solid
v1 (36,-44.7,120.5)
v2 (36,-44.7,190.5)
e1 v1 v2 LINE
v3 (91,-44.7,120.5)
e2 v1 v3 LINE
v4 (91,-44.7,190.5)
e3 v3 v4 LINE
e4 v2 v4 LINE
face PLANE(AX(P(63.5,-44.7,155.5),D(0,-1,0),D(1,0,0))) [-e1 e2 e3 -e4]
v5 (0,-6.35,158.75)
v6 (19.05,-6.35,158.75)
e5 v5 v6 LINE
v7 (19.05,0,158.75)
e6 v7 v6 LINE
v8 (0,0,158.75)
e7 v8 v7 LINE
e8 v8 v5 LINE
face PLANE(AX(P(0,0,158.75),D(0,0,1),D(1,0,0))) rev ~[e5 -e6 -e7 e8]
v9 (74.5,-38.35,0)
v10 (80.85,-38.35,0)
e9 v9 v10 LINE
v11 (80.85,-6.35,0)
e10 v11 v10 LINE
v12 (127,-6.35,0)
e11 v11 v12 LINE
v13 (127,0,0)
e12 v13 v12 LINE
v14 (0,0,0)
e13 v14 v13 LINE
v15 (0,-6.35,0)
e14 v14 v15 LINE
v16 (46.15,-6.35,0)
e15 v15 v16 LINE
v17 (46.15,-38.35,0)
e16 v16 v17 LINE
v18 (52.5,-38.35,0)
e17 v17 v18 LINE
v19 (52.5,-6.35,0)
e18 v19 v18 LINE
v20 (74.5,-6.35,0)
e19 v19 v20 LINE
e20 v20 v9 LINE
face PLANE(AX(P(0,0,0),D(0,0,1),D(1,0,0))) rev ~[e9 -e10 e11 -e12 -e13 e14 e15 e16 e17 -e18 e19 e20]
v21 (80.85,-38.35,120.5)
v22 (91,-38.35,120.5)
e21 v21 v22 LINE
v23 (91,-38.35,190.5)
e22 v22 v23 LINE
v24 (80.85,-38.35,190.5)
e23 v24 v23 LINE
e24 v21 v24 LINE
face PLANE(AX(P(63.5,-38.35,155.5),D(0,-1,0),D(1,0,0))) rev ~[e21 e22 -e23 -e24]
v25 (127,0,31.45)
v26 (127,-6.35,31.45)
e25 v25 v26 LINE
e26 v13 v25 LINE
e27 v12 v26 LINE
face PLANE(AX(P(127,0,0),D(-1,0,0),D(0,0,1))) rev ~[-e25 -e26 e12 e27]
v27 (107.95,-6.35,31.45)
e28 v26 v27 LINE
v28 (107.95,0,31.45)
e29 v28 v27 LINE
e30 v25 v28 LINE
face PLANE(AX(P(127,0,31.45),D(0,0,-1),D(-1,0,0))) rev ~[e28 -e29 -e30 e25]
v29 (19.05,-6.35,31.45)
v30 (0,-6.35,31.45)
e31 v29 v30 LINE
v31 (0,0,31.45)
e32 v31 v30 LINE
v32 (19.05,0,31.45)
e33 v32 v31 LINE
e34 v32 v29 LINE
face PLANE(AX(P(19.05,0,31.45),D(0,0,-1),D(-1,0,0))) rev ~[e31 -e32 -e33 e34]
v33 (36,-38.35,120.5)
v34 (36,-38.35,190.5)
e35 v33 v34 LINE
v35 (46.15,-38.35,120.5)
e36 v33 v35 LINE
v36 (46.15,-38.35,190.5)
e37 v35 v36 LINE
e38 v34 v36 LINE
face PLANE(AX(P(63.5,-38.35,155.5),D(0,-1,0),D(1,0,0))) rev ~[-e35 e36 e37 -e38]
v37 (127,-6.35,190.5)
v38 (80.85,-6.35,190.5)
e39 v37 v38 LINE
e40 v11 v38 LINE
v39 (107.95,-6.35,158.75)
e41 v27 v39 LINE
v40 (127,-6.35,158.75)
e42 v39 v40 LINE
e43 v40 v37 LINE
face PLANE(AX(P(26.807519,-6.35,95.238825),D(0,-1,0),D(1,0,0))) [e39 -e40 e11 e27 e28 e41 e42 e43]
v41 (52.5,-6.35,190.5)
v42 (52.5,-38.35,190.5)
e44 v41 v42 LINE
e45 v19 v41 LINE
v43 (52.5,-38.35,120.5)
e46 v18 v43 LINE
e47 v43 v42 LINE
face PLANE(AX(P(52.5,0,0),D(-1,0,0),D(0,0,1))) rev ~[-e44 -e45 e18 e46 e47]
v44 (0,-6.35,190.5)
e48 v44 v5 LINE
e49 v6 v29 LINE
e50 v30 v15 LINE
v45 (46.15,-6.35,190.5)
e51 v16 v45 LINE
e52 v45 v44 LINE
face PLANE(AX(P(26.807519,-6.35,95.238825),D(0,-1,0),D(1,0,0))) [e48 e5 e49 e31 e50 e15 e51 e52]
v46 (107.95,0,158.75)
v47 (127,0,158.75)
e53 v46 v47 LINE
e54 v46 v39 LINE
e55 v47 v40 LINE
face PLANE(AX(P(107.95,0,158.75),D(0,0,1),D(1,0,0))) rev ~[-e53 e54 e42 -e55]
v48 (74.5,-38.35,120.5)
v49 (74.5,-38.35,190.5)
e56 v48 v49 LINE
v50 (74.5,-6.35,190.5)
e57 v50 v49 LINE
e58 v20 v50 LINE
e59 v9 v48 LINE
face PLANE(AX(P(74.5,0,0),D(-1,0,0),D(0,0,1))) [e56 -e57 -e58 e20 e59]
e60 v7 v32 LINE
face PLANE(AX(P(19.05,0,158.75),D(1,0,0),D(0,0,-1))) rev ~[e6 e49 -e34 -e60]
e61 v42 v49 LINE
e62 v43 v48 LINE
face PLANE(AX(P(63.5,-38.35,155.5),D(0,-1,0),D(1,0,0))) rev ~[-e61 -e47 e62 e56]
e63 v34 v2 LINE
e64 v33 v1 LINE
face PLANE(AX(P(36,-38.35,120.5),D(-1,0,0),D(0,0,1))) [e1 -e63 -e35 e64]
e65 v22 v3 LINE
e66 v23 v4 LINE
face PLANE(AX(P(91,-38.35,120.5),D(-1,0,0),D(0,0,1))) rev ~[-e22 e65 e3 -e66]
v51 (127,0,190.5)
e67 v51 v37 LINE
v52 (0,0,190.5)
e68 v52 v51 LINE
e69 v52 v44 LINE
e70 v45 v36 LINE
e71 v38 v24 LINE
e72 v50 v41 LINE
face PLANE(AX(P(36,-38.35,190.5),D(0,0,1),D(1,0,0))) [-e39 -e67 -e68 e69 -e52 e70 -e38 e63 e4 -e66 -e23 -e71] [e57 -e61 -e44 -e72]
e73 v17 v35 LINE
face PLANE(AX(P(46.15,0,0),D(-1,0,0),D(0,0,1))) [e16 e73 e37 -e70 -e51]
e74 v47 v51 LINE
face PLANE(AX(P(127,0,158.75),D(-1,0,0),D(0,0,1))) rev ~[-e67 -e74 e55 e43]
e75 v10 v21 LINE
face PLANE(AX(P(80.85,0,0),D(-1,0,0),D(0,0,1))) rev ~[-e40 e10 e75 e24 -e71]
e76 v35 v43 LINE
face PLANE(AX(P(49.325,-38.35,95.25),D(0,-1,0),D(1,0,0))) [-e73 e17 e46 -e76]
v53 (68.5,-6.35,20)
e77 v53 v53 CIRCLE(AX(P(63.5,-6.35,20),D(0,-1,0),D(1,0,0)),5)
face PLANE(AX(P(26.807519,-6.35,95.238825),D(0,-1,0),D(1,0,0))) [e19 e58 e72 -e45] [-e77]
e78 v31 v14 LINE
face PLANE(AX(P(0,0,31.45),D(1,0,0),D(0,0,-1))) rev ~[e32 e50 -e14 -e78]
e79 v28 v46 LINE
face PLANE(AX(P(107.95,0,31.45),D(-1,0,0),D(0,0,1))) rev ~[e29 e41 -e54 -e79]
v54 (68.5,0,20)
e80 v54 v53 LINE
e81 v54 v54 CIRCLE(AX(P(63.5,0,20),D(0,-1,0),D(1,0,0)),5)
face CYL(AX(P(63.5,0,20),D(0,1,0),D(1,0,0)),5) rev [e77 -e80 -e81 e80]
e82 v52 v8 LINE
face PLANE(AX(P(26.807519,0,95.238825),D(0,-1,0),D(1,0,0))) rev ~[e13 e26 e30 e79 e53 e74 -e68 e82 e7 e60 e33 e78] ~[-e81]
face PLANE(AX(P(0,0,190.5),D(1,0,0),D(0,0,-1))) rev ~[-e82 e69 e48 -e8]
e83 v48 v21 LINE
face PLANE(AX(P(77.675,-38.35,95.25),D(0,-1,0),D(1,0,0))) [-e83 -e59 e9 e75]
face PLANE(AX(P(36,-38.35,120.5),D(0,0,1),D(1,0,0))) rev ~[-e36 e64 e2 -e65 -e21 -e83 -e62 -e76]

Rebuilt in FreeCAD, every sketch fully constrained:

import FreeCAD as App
import Part
import Sketcher

V = App.Vector
Q = App.Units.Quantity

doc = App.newDocument("Part")
params = doc.addObject("Spreadsheet::Sheet", "Params")
for row, (alias, value) in enumerate([
    ("sketch1_height", "7.5 in"),
    ("sketch1_width", "0.25 in"),
    ("pad1_length", "38.35 mm"),
    ("sketch2_width", "5 in"),
    ("sketch2_width2", "0.75 in"),
    ("sketch2_height", "1.25 in"),
    ("pad2_length", "0.25 in"),
    ("pad3_length", "0.25 in"),
], start=1):
    params.set(f"A{row}", alias)
    params.set(f"B{row}", "=" + value)
    params.setAlias(f"B{row}", alias)

body = doc.addObject("PartDesign::Body", "Body")
body.AllowCompound = True

# Sketch on XZ plane
sketch1 = body.newObject("Sketcher::SketchObject", "Sketch")
sketch1.AttachmentSupport = (doc.getObject("XZ_Plane"), [""])
sketch1.MapMode = "FlatFace"
sketch1.addGeometry(Part.LineSegment(V(46, 190, 0), V(46, 0, 0)), False)
sketch1.addGeometry(Part.LineSegment(V(46, 0, 0), V(52, 0, 0)), False)
sketch1.addGeometry(Part.LineSegment(V(52, 0, 0), V(52, 190, 0)), False)
sketch1.addGeometry(Part.LineSegment(V(52, 190, 0), V(46, 190, 0)), False)
sketch1.addGeometry(Part.LineSegment(V(74, 190, 0), V(74, 0, 0)), False)
sketch1.addGeometry(Part.LineSegment(V(74, 0, 0), V(81, 0, 0)), False)
sketch1.addGeometry(Part.LineSegment(V(81, 0, 0), V(81, 190, 0)), False)
sketch1.addGeometry(Part.LineSegment(V(81, 190, 0), V(74, 190, 0)), False)
sketch1.addConstraint(Sketcher.Constraint("Coincident", 0, 2, 1, 1))
sketch1.addConstraint(Sketcher.Constraint("Coincident", 1, 2, 2, 1))
sketch1.addConstraint(Sketcher.Constraint("Coincident", 2, 2, 3, 1))
sketch1.addConstraint(Sketcher.Constraint("Coincident", 3, 2, 0, 1))
sketch1.addConstraint(Sketcher.Constraint("Coincident", 4, 2, 5, 1))
sketch1.addConstraint(Sketcher.Constraint("Coincident", 5, 2, 6, 1))
sketch1.addConstraint(Sketcher.Constraint("Coincident", 6, 2, 7, 1))
sketch1.addConstraint(Sketcher.Constraint("Coincident", 7, 2, 4, 1))
sketch1.addConstraint(Sketcher.Constraint("Vertical", 0))
sketch1.addConstraint(Sketcher.Constraint("Horizontal", 1))
sketch1.addConstraint(Sketcher.Constraint("Vertical", 2))
sketch1.addConstraint(Sketcher.Constraint("Horizontal", 3))
sketch1.addConstraint(Sketcher.Constraint("Vertical", 4))
sketch1.addConstraint(Sketcher.Constraint("Horizontal", 5))
sketch1.addConstraint(Sketcher.Constraint("Vertical", 6))
sketch1.addConstraint(Sketcher.Constraint("Horizontal", 7))
sketch1.addConstraint(Sketcher.Constraint("PointOnObject", 0, 2, -1))
sketch1.addConstraint(Sketcher.Constraint("PointOnObject", 4, 2, -1))
sketch1.addConstraint(Sketcher.Constraint("Horizontal", 3, 2, 6, 2))
sketch1.addConstraint(Sketcher.Constraint("Equal", 3, 5))
sketch1.addConstraint(Sketcher.Constraint("DistanceY", 0, 2, 0, 1, Q("7.5 in")))
sketch1.addConstraint(Sketcher.Constraint("DistanceX", 1, 1, 1, 2, Q("0.25 in")))
sketch1.addConstraint(Sketcher.Constraint("DistanceX", -1, 1, 0, 2, Q("46.15 mm")))
sketch1.addConstraint(Sketcher.Constraint("DistanceX", -1, 1, 4, 2, Q("74.5 mm")))
sketch1.setExpression("Constraints[20]", "Params.sketch1_height")
sketch1.setExpression("Constraints[21]", "Params.sketch1_width")
pad1 = body.newObject("PartDesign::Pad", "Pad")
pad1.Profile = sketch1
pad1.setExpression("Length", "Params.pad1_length")

# Sketch on XZ plane
sketch2 = body.newObject("Sketcher::SketchObject", "Sketch001")
sketch2.AttachmentSupport = (doc.getObject("XZ_Plane"), [""])
sketch2.MapMode = "FlatFace"
sketch2.addGeometry(Part.LineSegment(V(0, 0, 0), V(127, 0, 0)), False)
sketch2.addGeometry(Part.LineSegment(V(127, 0, 0), V(127, 31, 0)), False)
sketch2.addGeometry(Part.LineSegment(V(127, 31, 0), V(108, 31, 0)), False)
sketch2.addGeometry(Part.LineSegment(V(108, 31, 0), V(108, 159, 0)), False)
sketch2.addGeometry(Part.LineSegment(V(108, 159, 0), V(127, 159, 0)), False)
sketch2.addGeometry(Part.LineSegment(V(127, 159, 0), V(127, 190, 0)), False)
sketch2.addGeometry(Part.LineSegment(V(127, 190, 0), V(0, 190, 0)), False)
sketch2.addGeometry(Part.LineSegment(V(0, 190, 0), V(0, 159, 0)), False)
sketch2.addGeometry(Part.LineSegment(V(0, 159, 0), V(19, 159, 0)), False)
sketch2.addGeometry(Part.LineSegment(V(19, 159, 0), V(19, 31, 0)), False)
sketch2.addGeometry(Part.LineSegment(V(19, 31, 0), V(0, 31, 0)), False)
sketch2.addGeometry(Part.LineSegment(V(0, 31, 0), V(0, 0, 0)), False)
sketch2.addGeometry(Part.Circle(V(64, 20, 0), V(0, 0, 1), 5), False)
sketch2.addConstraint(Sketcher.Constraint("Coincident", 0, 2, 1, 1))
sketch2.addConstraint(Sketcher.Constraint("Coincident", 1, 2, 2, 1))
sketch2.addConstraint(Sketcher.Constraint("Coincident", 2, 2, 3, 1))
sketch2.addConstraint(Sketcher.Constraint("Coincident", 3, 2, 4, 1))
sketch2.addConstraint(Sketcher.Constraint("Coincident", 4, 2, 5, 1))
sketch2.addConstraint(Sketcher.Constraint("Coincident", 5, 2, 6, 1))
sketch2.addConstraint(Sketcher.Constraint("Coincident", 6, 2, 7, 1))
sketch2.addConstraint(Sketcher.Constraint("Coincident", 7, 2, 8, 1))
sketch2.addConstraint(Sketcher.Constraint("Coincident", 8, 2, 9, 1))
sketch2.addConstraint(Sketcher.Constraint("Coincident", 9, 2, 10, 1))
sketch2.addConstraint(Sketcher.Constraint("Coincident", 10, 2, 11, 1))
sketch2.addConstraint(Sketcher.Constraint("Coincident", 11, 2, 0, 1))
sketch2.addConstraint(Sketcher.Constraint("Horizontal", 0))
sketch2.addConstraint(Sketcher.Constraint("Vertical", 1))
sketch2.addConstraint(Sketcher.Constraint("Horizontal", 2))
sketch2.addConstraint(Sketcher.Constraint("Vertical", 3))
sketch2.addConstraint(Sketcher.Constraint("Horizontal", 4))
sketch2.addConstraint(Sketcher.Constraint("Vertical", 5))
sketch2.addConstraint(Sketcher.Constraint("Horizontal", 6))
sketch2.addConstraint(Sketcher.Constraint("Vertical", 7))
sketch2.addConstraint(Sketcher.Constraint("Horizontal", 8))
sketch2.addConstraint(Sketcher.Constraint("Vertical", 9))
sketch2.addConstraint(Sketcher.Constraint("Horizontal", 10))
sketch2.addConstraint(Sketcher.Constraint("Vertical", 11))
sketch2.addConstraint(Sketcher.Constraint("Coincident", 11, 2, -1, 1))
sketch2.addConstraint(Sketcher.Constraint("PointOnObject", 6, 2, -2))
sketch2.addConstraint(Sketcher.Constraint("Horizontal", 4, 2, 7, 2))
sketch2.addConstraint(Sketcher.Constraint("Horizontal", 2, 2, 9, 2))
sketch2.addConstraint(Sketcher.Constraint("Vertical", 1, 2, 4, 2))
sketch2.addConstraint(Sketcher.Constraint("Equal", 4, 8))
sketch2.addConstraint(Sketcher.Constraint("DistanceX", 0, 1, 0, 2, Q("5 in")))
sketch2.addConstraint(Sketcher.Constraint("DistanceX", 2, 2, 2, 1, Q("0.75 in")))
sketch2.addConstraint(Sketcher.Constraint("DistanceY", 5, 1, 5, 2, Q("1.25 in")))
sketch2.addConstraint(Sketcher.Constraint("DistanceX", -1, 1, 12, 3, Q("2.5 in")))
sketch2.addConstraint(Sketcher.Constraint("DistanceY", -1, 1, 5, 2, Q("7.5 in")))
sketch2.addConstraint(Sketcher.Constraint("Diameter", 12, Q("10 mm")))
sketch2.addConstraint(Sketcher.Constraint("DistanceY", 1, 1, 1, 2, Q("31.45 mm")))
sketch2.addConstraint(Sketcher.Constraint("DistanceY", -1, 1, 12, 3, Q("20 mm")))
sketch2.setExpression("Constraints[30]", "Params.sketch2_width")
sketch2.setExpression("Constraints[31]", "Params.sketch2_width2")
sketch2.setExpression("Constraints[32]", "Params.sketch2_height")
pad2 = body.newObject("PartDesign::Pad", "Pad001")
pad2.Profile = sketch2
pad2.setExpression("Length", "Params.pad2_length")

# Sketch on XZ plane
sketch3 = body.newObject("Sketcher::SketchObject", "Sketch002")
sketch3.AttachmentSupport = (doc.getObject("XZ_Plane"), [""])
sketch3.MapMode = "FlatFace"
sketch3.AttachmentOffset = App.Placement(V(0, 0, 38.35), App.Rotation())
sketch3.addGeometry(Part.LineSegment(V(36, 190, 0), V(36, 120, 0)), False)
sketch3.addGeometry(Part.LineSegment(V(36, 120, 0), V(91, 120, 0)), False)
sketch3.addGeometry(Part.LineSegment(V(91, 120, 0), V(91, 190, 0)), False)
sketch3.addGeometry(Part.LineSegment(V(91, 190, 0), V(36, 190, 0)), False)
sketch3.addConstraint(Sketcher.Constraint("Coincident", 0, 2, 1, 1))
sketch3.addConstraint(Sketcher.Constraint("Coincident", 1, 2, 2, 1))
sketch3.addConstraint(Sketcher.Constraint("Coincident", 2, 2, 3, 1))
sketch3.addConstraint(Sketcher.Constraint("Coincident", 3, 2, 0, 1))
sketch3.addConstraint(Sketcher.Constraint("Vertical", 0))
sketch3.addConstraint(Sketcher.Constraint("Horizontal", 1))
sketch3.addConstraint(Sketcher.Constraint("Vertical", 2))
sketch3.addConstraint(Sketcher.Constraint("Horizontal", 3))
sketch3.addConstraint(Sketcher.Constraint("DistanceY", -1, 1, 2, 2, Q("7.5 in")))
sketch3.addConstraint(Sketcher.Constraint("DistanceX", 1, 1, 1, 2, Q("55 mm")))
sketch3.addConstraint(Sketcher.Constraint("DistanceY", 0, 2, 0, 1, Q("70 mm")))
sketch3.addConstraint(Sketcher.Constraint("DistanceX", -1, 1, 0, 2, Q("36 mm")))
pad3 = body.newObject("PartDesign::Pad", "Pad002")
pad3.Profile = sketch3
pad3.setExpression("Length", "Params.pad3_length")

doc.recompute()
